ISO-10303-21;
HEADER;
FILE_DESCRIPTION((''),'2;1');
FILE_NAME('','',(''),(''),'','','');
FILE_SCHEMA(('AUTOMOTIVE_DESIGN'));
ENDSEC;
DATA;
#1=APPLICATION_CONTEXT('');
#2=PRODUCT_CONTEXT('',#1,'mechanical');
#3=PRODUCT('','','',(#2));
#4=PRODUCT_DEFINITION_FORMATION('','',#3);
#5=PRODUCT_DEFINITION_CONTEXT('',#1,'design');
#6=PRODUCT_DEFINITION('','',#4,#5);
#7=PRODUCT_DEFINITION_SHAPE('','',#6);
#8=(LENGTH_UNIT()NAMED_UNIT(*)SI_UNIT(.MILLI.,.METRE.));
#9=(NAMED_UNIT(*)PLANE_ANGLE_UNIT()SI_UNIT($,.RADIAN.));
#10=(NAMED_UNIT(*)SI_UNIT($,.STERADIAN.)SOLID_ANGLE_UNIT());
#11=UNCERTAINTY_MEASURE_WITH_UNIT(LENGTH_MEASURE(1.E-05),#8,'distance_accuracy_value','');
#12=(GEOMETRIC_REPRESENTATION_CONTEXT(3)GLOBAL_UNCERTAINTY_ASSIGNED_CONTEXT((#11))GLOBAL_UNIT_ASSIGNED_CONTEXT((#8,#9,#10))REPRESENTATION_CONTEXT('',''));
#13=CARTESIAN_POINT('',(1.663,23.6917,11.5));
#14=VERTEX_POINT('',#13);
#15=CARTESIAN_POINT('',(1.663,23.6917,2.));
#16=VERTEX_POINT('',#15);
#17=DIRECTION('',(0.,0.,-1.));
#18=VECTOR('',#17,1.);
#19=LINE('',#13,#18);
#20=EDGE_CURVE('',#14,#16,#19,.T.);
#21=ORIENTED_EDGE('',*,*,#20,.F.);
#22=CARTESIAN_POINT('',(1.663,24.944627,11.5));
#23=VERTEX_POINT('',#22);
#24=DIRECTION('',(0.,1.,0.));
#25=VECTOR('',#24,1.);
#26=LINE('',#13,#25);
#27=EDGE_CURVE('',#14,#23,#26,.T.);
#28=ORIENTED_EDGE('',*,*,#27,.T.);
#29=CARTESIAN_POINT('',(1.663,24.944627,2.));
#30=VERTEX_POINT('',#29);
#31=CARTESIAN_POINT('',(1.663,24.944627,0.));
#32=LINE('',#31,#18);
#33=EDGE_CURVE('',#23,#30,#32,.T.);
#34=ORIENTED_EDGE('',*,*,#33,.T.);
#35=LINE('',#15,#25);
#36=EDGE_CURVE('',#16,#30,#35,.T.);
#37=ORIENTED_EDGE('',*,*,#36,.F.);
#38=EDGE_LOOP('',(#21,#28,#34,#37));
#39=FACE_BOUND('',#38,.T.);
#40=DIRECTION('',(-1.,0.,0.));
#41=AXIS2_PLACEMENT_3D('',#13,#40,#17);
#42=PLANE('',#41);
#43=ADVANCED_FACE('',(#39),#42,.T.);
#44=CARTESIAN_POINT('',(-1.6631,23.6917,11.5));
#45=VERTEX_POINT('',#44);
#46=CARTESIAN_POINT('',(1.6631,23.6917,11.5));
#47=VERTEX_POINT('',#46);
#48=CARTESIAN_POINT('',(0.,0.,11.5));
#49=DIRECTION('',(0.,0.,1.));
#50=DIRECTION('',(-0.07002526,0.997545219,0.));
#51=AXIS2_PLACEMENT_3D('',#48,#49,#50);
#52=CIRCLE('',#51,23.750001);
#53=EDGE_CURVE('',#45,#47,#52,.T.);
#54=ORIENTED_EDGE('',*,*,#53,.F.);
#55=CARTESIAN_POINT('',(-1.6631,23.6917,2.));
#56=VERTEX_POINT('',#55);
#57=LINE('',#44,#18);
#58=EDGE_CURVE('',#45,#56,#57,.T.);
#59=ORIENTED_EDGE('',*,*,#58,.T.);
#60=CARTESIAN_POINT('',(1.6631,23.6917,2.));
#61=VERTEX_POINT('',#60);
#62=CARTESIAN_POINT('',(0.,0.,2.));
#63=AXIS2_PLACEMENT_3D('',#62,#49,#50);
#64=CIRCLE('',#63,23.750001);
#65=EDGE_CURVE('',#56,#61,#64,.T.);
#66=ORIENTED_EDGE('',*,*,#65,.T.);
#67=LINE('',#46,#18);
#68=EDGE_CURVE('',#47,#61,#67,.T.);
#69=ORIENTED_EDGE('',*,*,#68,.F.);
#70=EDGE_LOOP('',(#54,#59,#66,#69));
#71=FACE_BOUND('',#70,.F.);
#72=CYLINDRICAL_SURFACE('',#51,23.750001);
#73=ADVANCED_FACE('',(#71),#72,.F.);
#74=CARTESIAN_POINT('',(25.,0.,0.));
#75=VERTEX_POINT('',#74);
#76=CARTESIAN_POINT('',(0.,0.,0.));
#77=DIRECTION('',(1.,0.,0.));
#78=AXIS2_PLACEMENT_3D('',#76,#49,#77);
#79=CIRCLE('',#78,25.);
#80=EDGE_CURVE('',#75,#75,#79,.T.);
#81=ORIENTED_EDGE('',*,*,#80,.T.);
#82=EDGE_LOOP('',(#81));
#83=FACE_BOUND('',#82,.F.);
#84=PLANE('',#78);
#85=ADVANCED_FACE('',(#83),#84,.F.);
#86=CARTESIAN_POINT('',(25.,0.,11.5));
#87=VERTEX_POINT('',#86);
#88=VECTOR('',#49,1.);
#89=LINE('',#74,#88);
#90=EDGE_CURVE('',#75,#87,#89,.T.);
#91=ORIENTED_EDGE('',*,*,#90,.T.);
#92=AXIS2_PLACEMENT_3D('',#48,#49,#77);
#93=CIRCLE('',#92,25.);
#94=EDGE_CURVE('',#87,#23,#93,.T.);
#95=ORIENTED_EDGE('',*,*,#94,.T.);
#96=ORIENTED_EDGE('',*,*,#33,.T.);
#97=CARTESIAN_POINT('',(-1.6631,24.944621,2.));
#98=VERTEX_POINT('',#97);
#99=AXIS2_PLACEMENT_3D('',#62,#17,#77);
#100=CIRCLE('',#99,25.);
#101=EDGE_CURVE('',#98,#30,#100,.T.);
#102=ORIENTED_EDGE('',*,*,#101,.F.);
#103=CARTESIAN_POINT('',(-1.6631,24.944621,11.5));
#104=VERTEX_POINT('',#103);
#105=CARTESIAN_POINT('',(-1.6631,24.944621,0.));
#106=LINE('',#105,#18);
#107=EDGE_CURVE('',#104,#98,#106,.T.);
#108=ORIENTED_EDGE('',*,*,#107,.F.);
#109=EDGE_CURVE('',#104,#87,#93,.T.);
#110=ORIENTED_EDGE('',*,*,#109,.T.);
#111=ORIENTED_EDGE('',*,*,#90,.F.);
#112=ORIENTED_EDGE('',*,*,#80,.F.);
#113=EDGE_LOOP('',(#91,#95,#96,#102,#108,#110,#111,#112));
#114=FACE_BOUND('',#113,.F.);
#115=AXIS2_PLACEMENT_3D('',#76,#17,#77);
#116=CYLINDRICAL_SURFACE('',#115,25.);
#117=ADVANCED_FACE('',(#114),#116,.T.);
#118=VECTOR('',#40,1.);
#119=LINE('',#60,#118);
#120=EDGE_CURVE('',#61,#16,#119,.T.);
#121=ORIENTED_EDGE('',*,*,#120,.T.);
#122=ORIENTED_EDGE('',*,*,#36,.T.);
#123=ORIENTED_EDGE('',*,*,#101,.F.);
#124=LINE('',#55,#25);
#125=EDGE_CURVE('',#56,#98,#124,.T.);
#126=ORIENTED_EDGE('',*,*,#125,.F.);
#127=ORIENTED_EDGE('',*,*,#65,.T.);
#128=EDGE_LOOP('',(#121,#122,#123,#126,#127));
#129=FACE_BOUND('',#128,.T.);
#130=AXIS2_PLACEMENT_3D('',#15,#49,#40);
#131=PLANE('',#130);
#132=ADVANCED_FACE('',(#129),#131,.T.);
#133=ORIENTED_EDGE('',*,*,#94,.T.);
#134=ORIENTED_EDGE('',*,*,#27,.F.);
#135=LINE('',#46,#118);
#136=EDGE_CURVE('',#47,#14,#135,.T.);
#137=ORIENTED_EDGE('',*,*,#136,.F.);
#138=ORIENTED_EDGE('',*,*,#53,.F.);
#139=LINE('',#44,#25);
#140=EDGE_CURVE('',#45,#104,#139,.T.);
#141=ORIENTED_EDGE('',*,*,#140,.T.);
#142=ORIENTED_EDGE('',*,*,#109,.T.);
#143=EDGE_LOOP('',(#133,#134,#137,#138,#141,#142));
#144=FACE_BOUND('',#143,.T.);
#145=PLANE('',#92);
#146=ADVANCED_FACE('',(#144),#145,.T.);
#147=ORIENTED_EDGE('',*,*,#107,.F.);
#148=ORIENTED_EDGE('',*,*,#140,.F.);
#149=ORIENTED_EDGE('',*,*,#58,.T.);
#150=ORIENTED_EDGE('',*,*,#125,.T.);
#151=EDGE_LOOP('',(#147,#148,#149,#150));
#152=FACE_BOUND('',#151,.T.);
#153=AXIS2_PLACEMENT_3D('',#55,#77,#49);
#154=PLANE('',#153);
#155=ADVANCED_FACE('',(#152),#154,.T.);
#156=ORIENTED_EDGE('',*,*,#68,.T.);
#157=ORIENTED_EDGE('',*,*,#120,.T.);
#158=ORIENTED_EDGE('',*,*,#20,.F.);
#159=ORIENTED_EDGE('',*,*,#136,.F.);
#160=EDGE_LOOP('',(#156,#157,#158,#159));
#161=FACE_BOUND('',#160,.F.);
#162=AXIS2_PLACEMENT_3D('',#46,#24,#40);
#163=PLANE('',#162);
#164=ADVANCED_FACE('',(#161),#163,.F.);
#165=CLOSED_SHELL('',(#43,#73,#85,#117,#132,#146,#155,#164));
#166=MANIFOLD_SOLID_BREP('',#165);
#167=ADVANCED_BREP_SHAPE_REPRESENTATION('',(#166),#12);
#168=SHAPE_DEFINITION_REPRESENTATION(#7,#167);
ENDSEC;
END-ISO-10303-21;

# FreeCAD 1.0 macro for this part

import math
import FreeCAD as App
import Part
import Sketcher

V = App.Vector
Q = App.Units.Quantity


def add_polygon(sketch, points):
    """Adds a closed chain of lines whose ends are joined by coincident constraints."""
    first, n = sketch.GeometryCount, len(points)
    for a, b in zip(points, points[1:] + points[:1]):
        sketch.addGeometry(Part.LineSegment(App.Vector(*a, 0), App.Vector(*b, 0)), False)
    for i in range(n):
        sketch.addConstraint(Sketcher.Constraint("Coincident", first + i, 2, first + (i + 1) % n, 1))

doc = App.newDocument("Part")
body = doc.addObject("PartDesign::Body", "Body")

# Sketch on XY plane
sketch1 = body.newObject("Sketcher::SketchObject", "Sketch")
sketch1.AttachmentSupport = (doc.getObject("XY_Plane"), [""])
sketch1.MapMode = "FlatFace"
sketch1.addGeometry(Part.Circle(V(0, 0, 0), V(0, 0, 1), 25), False)
sketch1.addConstraint([
    Sketcher.Constraint("Coincident", 0, 3, -1, 1),
    Sketcher.Constraint("Diameter", 0, Q("50 mm")),
])
pad1 = body.newObject("PartDesign::Pad", "Pad")
pad1.Profile = sketch1
pad1.Length = 11.5

# Sketch on XY plane
sketch2 = body.newObject("Sketcher::SketchObject", "Sketch001")
sketch2.AttachmentSupport = (doc.getObject("XY_Plane"), [""])
sketch2.MapMode = "FlatFace"
sketch2.AttachmentOffset = App.Placement(V(0, 0, 11.5), App.Rotation())
sketch2.addGeometry([
    Part.LineSegment(V(1.7, 23.7, 0), V(-1.7, 23.7, 0)),
    Part.ArcOfCircle(Part.Circle(V(0, 0, 0), V(0, 0, 1), 23.8), math.radians(94), math.radians(446)),
], False)
sketch2.addConstraint([
    Sketcher.Constraint("Coincident", 0, 1, 1, 2),
    Sketcher.Constraint("Coincident", 1, 1, 0, 2),
    Sketcher.Constraint("Horizontal", 0),
    Sketcher.Constraint("Coincident", 1, 3, -1, 1),
    Sketcher.Constraint("Radius", 1, Q("23.75 mm")),
    Sketcher.Constraint("DistanceY", -1, 1, 0, 1, Q("23.6917 mm")),
])
pocket1 = body.newObject("PartDesign::Pocket", "Pocket")
pocket1.Profile = sketch2
pocket1.Length = 9.5

# Sketch on XZ plane
sketch3 = body.newObject("Sketcher::SketchObject", "Sketch002")
sketch3.AttachmentSupport = (doc.getObject("XZ_Plane"), [""])
sketch3.MapMode = "FlatFace"
sketch3.AttachmentOffset = App.Placement(V(0, 0, -23.6917), App.Rotation())
add_polygon(sketch3, [(1.7, 11.5), (-1.7, 11.5), (-1.7, 2), (1.7, 2)])  # lines 0-3
sketch3.addConstraint([
    Sketcher.Constraint("Horizontal", 0),
    Sketcher.Constraint("Vertical", 1),
    Sketcher.Constraint("Horizontal", 2),
    Sketcher.Constraint("Vertical", 3),
    Sketcher.Constraint("DistanceY", 1, 2, 1, 1, Q("9.5 mm")),
    Sketcher.Constraint("DistanceX", 0, 2, 0, 1, Q("3.326 mm")),
    Sketcher.Constraint("DistanceY", -1, 1, 1, 2, Q("2 mm")),
    Sketcher.Constraint("DistanceX", 0, 2, -1, 1, Q("1.663 mm")),
])
pocket2 = body.newObject("PartDesign::Pocket", "Pocket001")
pocket2.Profile = sketch3
pocket2.Length = 1.5

doc.recompute()
